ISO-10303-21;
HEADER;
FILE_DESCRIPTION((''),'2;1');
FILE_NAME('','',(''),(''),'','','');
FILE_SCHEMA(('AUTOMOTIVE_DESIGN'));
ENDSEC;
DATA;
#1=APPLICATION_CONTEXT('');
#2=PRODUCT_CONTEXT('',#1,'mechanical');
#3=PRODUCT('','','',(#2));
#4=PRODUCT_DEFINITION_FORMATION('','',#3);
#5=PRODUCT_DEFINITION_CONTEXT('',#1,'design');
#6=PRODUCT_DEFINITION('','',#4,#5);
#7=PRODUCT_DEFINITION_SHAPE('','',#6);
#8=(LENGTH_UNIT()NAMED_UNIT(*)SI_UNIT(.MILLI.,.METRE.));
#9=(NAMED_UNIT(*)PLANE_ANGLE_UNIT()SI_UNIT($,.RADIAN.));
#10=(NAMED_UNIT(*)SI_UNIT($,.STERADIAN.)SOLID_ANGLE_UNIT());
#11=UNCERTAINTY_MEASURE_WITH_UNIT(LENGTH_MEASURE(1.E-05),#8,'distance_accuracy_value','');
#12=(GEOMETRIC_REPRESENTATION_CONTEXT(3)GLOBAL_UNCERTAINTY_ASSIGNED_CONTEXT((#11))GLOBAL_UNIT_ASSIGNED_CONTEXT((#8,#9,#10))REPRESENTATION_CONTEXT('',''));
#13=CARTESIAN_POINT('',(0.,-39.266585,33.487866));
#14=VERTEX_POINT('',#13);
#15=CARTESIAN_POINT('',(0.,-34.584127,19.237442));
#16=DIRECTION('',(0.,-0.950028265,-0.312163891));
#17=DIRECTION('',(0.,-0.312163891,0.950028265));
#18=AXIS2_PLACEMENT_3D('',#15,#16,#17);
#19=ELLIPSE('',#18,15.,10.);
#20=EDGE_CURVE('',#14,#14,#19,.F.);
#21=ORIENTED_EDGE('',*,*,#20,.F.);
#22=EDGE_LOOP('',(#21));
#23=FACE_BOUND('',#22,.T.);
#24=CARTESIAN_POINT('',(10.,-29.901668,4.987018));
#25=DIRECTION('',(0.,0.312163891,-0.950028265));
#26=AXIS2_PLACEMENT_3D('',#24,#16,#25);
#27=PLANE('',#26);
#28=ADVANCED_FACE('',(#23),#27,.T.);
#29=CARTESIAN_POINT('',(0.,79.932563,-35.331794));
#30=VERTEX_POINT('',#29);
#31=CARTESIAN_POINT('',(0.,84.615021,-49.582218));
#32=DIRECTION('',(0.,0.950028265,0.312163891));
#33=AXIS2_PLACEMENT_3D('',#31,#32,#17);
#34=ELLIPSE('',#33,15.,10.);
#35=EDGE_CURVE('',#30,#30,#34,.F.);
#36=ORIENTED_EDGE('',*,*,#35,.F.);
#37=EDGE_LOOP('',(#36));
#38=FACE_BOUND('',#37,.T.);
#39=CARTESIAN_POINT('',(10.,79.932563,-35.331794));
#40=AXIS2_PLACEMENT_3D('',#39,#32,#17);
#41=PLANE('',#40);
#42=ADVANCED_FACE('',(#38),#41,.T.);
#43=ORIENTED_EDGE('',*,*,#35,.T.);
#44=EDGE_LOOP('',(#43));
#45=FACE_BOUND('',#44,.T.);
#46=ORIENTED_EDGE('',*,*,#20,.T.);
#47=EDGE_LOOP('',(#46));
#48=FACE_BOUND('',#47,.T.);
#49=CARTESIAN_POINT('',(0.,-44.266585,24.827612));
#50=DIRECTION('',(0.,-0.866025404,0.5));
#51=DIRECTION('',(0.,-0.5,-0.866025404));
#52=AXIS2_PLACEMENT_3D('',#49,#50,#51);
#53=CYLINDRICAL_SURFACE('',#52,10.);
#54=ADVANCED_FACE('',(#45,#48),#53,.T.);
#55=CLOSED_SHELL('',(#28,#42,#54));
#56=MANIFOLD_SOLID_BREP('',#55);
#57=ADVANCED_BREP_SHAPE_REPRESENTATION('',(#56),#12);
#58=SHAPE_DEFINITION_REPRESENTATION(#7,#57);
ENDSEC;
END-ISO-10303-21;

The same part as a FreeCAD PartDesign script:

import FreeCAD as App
import Part
import Sketcher

V = App.Vector
Q = App.Units.Quantity


def add_polygon(sketch, points):
    """Adds a closed chain of lines whose ends are joined by coincident constraints."""
    first, n = sketch.GeometryCount, len(points)
    for a, b in zip(points, points[1:] + points[:1]):
        sketch.addGeometry(Part.LineSegment(App.Vector(*a, 0), App.Vector(*b, 0)), False)
    for i in range(n):
        sketch.addConstraint(Sketcher.Constraint("Coincident", first + i, 2, first + (i + 1) % n, 1))

doc = App.newDocument("Part")
body = doc.addObject("PartDesign::Body", "Body")

sketch1 = body.newObject("Sketcher::SketchObject", "Sketch")
sketch1.AttachmentSupport = (doc.getObject("YZ_Plane"), [""])
sketch1.MapMode = "FlatFace"
add_polygon(sketch1, [(-44, 25), (94, -55), (99, -47), (-39, 33)])
sketch1.addGeometry(Part.LineSegment(V(-44, 25, 0), V(94, -55, 0)), True)
sketch1.addConstraint([
    Sketcher.Constraint("Coincident", 4, 1, 3, 2),
    Sketcher.Constraint("Coincident", 4, 2, 0, 2),
    Sketcher.Constraint("Perpendicular", 0, 1),
    Sketcher.Constraint("Perpendicular", 1, 2),
    Sketcher.Constraint("Perpendicular", 2, 3),
    Sketcher.Constraint("Angle", 0, Q("-30 deg")),
    Sketcher.Constraint("Distance", 0, Q("160 mm")),
    Sketcher.Constraint("Distance", 1, Q("10 mm")),
    Sketcher.Constraint("DistanceX", -1, 1, 0, 2, Q("94.297479 mm")),
    Sketcher.Constraint("DistanceY", 0, 2, -1, 1, Q("55.172388 mm")),
])
revolution = body.newObject("PartDesign::Revolution", "Revolution")
revolution.Profile = sketch1
revolution.ReferenceAxis = (sketch1, ["Axis0"])
revolution.Angle = 360

sketch2 = body.newObject("Sketcher::SketchObject", "Sketch001")
sketch2.AttachmentSupport = (doc.getObject("YZ_Plane"), [""])
sketch2.MapMode = "FlatFace"
add_polygon(sketch2, [(89, -64), (99, -47), (80, -35)])
add_polygon(sketch2, [(-39, 33), (-49, 16), (-30, 5)])
sketch2.addConstraint([
    Sketcher.Constraint("Perpendicular", 0, 1),
    Sketcher.Constraint("Perpendicular", 1, 3),
    Sketcher.Constraint("Perpendicular", 3, 4),
    Sketcher.Constraint("Parallel", 2, 5),
    Sketcher.Constraint("Equal", 0, 3),
    Sketcher.Constraint("Angle", 0, Q("60 deg")),
    Sketcher.Constraint("Distance", 0, Q("20 mm")),
    Sketcher.Constraint("Distance", 2, Q("30 mm")),
    Sketcher.Constraint("DistanceY", 2, 2, 3, 2, Q("80 mm")),
    Sketcher.Constraint("DistanceX", -1, 1, 0, 2, Q("99.297479 mm")),
    Sketcher.Constraint("DistanceY", 2, 2, -1, 1, Q("63.832642 mm")),
    Sketcher.Constraint("DistanceX", 4, 2, -1, 1, Q("29.901668 mm")),
])
pocket1 = body.newObject("PartDesign::Pocket", "Pocket")
pocket1.Profile = sketch2
pocket1.Type = "ThroughAll"
pocket1.Midplane = True

doc.recompute()
